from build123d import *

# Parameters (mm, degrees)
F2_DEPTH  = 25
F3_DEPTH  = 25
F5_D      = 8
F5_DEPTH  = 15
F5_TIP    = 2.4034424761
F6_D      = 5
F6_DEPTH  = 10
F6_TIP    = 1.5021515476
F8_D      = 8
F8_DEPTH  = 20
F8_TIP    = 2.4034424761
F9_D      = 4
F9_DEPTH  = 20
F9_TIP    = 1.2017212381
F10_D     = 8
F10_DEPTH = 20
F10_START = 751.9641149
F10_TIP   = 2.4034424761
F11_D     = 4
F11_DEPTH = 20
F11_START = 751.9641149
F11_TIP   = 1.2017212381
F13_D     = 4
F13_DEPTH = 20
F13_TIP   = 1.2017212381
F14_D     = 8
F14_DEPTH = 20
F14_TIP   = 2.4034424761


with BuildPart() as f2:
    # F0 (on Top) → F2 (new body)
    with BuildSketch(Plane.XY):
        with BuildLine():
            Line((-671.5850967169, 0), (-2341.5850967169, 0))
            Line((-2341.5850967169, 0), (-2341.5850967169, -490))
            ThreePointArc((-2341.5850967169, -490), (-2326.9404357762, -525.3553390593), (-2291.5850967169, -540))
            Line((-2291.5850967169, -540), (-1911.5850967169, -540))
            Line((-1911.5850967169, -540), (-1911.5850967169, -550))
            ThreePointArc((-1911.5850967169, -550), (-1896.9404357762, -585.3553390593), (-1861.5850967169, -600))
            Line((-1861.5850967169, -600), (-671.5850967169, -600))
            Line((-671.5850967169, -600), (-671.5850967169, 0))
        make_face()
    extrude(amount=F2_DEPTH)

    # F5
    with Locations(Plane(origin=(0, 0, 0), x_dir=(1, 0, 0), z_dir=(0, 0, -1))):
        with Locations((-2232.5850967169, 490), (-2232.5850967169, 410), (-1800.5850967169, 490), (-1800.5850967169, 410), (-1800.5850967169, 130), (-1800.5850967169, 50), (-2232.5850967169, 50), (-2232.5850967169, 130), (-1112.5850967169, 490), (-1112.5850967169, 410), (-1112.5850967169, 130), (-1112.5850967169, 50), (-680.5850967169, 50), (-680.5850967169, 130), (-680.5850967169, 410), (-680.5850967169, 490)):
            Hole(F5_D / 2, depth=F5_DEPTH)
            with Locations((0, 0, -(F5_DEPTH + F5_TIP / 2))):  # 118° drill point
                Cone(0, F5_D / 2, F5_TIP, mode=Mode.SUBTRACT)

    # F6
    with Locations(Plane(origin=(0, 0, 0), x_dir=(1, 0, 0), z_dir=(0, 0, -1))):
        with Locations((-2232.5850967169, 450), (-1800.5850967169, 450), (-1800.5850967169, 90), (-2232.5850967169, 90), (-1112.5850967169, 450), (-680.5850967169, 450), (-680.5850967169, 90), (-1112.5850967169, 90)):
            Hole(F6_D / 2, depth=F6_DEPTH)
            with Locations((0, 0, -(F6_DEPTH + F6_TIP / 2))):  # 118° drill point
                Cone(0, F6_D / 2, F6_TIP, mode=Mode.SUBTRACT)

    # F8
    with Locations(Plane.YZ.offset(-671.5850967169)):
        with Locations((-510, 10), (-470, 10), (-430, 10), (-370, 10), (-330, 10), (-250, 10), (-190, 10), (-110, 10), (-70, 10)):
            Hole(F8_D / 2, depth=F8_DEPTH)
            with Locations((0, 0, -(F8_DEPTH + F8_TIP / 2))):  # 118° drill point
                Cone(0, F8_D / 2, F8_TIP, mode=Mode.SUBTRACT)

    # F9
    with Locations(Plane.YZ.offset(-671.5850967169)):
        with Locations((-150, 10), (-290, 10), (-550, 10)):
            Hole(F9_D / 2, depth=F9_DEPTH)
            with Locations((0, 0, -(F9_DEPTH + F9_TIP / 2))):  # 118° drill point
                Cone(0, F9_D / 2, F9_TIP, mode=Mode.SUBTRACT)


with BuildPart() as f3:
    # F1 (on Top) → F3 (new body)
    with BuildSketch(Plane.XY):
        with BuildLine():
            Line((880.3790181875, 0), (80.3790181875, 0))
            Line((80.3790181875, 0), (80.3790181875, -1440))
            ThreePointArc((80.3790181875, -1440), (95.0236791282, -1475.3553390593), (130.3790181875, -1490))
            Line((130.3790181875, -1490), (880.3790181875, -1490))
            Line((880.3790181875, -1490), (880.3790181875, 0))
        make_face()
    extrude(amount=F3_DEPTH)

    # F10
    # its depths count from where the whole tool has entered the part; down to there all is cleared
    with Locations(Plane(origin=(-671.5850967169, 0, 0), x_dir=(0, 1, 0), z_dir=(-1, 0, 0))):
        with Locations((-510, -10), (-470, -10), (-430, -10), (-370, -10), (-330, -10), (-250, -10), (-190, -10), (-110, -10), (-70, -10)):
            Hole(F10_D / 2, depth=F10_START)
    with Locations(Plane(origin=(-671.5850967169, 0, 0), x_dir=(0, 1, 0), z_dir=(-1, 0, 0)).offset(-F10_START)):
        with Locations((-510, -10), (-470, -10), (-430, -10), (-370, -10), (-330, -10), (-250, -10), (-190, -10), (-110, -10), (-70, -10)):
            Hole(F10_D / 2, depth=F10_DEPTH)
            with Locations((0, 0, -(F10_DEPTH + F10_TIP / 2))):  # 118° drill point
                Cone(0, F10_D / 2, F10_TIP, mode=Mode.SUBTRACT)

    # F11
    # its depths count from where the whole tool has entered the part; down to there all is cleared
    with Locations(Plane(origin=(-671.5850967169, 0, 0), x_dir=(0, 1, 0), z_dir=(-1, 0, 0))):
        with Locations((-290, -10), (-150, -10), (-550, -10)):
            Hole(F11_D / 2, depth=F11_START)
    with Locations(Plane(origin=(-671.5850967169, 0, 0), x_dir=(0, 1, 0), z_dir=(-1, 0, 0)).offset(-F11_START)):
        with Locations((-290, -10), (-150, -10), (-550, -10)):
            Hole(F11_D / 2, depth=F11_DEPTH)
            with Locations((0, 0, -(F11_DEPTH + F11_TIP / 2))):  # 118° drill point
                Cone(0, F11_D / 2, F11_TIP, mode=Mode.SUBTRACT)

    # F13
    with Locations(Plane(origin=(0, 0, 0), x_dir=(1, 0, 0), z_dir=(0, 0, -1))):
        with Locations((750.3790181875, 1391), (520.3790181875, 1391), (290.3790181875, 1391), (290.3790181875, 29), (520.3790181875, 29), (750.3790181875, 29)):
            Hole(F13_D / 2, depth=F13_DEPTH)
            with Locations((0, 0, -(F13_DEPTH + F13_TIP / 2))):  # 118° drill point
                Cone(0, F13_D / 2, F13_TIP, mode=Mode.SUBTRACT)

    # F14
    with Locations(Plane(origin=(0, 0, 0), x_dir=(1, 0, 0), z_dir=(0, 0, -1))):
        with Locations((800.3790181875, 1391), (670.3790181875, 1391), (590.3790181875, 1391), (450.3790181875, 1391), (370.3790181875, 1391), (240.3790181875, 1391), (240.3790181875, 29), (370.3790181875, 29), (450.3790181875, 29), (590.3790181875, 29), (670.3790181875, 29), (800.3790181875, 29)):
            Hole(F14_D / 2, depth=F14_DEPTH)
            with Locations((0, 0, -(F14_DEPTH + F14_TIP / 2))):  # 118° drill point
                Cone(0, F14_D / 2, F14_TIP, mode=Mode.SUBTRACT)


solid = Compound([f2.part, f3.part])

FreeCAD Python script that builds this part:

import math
import FreeCAD as App
import Part
import Sketcher

doc = App.newDocument("Part")
body = doc.addObject("PartDesign::Body", "Body")

sketch1 = body.newObject("Sketcher::SketchObject", "Sketch")
sketch1.AttachmentSupport = (doc.getObject("XY_Plane"), [""])
sketch1.MapMode = "FlatFace"
sketch1.addGeometry([
    Part.LineSegment(App.Vector(-672, 0, 0), App.Vector(-2342, 0, 0)),
    Part.LineSegment(App.Vector(-2342, 0, 0), App.Vector(-2342, -490, 0)),
    Part.ArcOfCircle(Part.Circle(App.Vector(-2292, -490, 0), App.Vector(0, 0, 1), 50), math.radians(180), math.radians(270)),
    Part.LineSegment(App.Vector(-2292, -540, 0), App.Vector(-1912, -540, 0)),
    Part.LineSegment(App.Vector(-1912, -540, 0), App.Vector(-1912, -550, 0)),
    Part.ArcOfCircle(Part.Circle(App.Vector(-1862, -550, 0), App.Vector(0, 0, 1), 50), math.radians(180), math.radians(270)),
    Part.LineSegment(App.Vector(-1862, -600, 0), App.Vector(-672, -600, 0)),
    Part.LineSegment(App.Vector(-672, -600, 0), App.Vector(-672, 0, 0)),
], False)
sketch1.addConstraint([
    Sketcher.Constraint("Coincident", 0, 2, 1, 1),
    Sketcher.Constraint("Tangent", 1, 2, 2, 1),
    Sketcher.Constraint("Tangent", 2, 2, 3, 1),
    Sketcher.Constraint("Coincident", 3, 2, 4, 1),
    Sketcher.Constraint("Tangent", 4, 2, 5, 1),
    Sketcher.Constraint("Tangent", 5, 2, 6, 1),
    Sketcher.Constraint("Coincident", 6, 2, 7, 1),
    Sketcher.Constraint("Coincident", 7, 2, 0, 1),
    Sketcher.Constraint("Horizontal", 0),
    Sketcher.Constraint("Vertical", 1),
    Sketcher.Constraint("Horizontal", 3),
    Sketcher.Constraint("Vertical", 4),
    Sketcher.Constraint("Horizontal", 6),
    Sketcher.Constraint("Vertical", 7),
    Sketcher.Constraint("Equal", 2, 5),
    Sketcher.Constraint("PointOnObject", 0, 2, -1),
    Sketcher.Constraint("Radius", 2, 50.0),
    Sketcher.Constraint("DistanceX", 0, 2, 0, 1, 1670.0),
    Sketcher.Constraint("DistanceX", 3, 1, 3, 2, 380.0),
    Sketcher.Constraint("DistanceY", 1, 2, 1, 1, 490.0),
    Sketcher.Constraint("DistanceY", 4, 2, 4, 1, 10.0),
    Sketcher.Constraint("DistanceX", 2, 3, -1, 1, 2291.585097),
])
pad1 = body.newObject("PartDesign::Pad", "Pad")
pad1.Profile = sketch1
pad1.Length = 25

sketch2 = body.newObject("Sketcher::SketchObject", "Sketch001")
sketch2.AttachmentSupport = (doc.getObject("XY_Plane"), [""])
sketch2.MapMode = "FlatFace"
sketch2.addGeometry([
    Part.Circle(App.Vector(-2232.6, -490, 0), App.Vector(0, 0, 1), 4),
    Part.Circle(App.Vector(-2232.6, -410, 0), App.Vector(0, 0, 1), 4),
    Part.Circle(App.Vector(-1800.6, -490, 0), App.Vector(0, 0, 1), 4),
    Part.Circle(App.Vector(-1800.6, -410, 0), App.Vector(0, 0, 1), 4),
    Part.Circle(App.Vector(-1800.6, -130, 0), App.Vector(0, 0, 1), 4),
    Part.Circle(App.Vector(-1800.6, -50, 0), App.Vector(0, 0, 1), 4),
    Part.Circle(App.Vector(-2232.6, -50, 0), App.Vector(0, 0, 1), 4),
    Part.Circle(App.Vector(-2232.6, -130, 0), App.Vector(0, 0, 1), 4),
    Part.Circle(App.Vector(-1112.6, -490, 0), App.Vector(0, 0, 1), 4),
    Part.Circle(App.Vector(-1112.6, -410, 0), App.Vector(0, 0, 1), 4),
    Part.Circle(App.Vector(-1112.6, -130, 0), App.Vector(0, 0, 1), 4),
    Part.Circle(App.Vector(-1112.6, -50, 0), App.Vector(0, 0, 1), 4),
    Part.Circle(App.Vector(-680.6, -50, 0), App.Vector(0, 0, 1), 4),
    Part.Circle(App.Vector(-680.6, -130, 0), App.Vector(0, 0, 1), 4),
    Part.Circle(App.Vector(-680.6, -410, 0), App.Vector(0, 0, 1), 4),
    Part.Circle(App.Vector(-680.6, -490, 0), App.Vector(0, 0, 1), 4),
], False)
sketch2.addConstraint([
    Sketcher.Constraint("Equal", 0, 1),
    Sketcher.Constraint("Equal", 1, 2),
    Sketcher.Constraint("Equal", 2, 3),
    Sketcher.Constraint("Equal", 3, 4),
    Sketcher.Constraint("Equal", 4, 5),
    Sketcher.Constraint("Equal", 5, 6),
    Sketcher.Constraint("Equal", 6, 7),
    Sketcher.Constraint("Equal", 7, 8),
    Sketcher.Constraint("Equal", 8, 9),
    Sketcher.Constraint("Equal", 9, 10),
    Sketcher.Constraint("Equal", 10, 11),
    Sketcher.Constraint("Equal", 11, 12),
    Sketcher.Constraint("Equal", 12, 13),
    Sketcher.Constraint("Equal", 13, 14),
    Sketcher.Constraint("Equal", 14, 15),
    Sketcher.Constraint("Horizontal", 0, 3, 2, 3),
    Sketcher.Constraint("Horizontal", 1, 3, 3, 3),
    Sketcher.Constraint("Horizontal", 5, 3, 6, 3),
    Sketcher.Constraint("Horizontal", 4, 3, 7, 3),
    Sketcher.Constraint("Horizontal", 2, 3, 8, 3),
    Sketcher.Constraint("Horizontal", 3, 3, 9, 3),
    Sketcher.Constraint("Horizontal", 7, 3, 10, 3),
    Sketcher.Constraint("Horizontal", 6, 3, 11, 3),
    Sketcher.Constraint("Horizontal", 11, 3, 12, 3),
    Sketcher.Constraint("Horizontal", 10, 3, 13, 3),
    Sketcher.Constraint("Horizontal", 9, 3, 14, 3),
    Sketcher.Constraint("Horizontal", 8, 3, 15, 3),
    Sketcher.Constraint("Vertical", 0, 3, 1, 3),
    Sketcher.Constraint("Vertical", 2, 3, 3, 3),
    Sketcher.Constraint("Vertical", 3, 3, 4, 3),
    Sketcher.Constraint("Vertical", 4, 3, 5, 3),
    Sketcher.Constraint("Vertical", 1, 3, 6, 3),
    Sketcher.Constraint("Vertical", 6, 3, 7, 3),
    Sketcher.Constraint("Vertical", 8, 3, 9, 3),
    Sketcher.Constraint("Vertical", 9, 3, 10, 3),
    Sketcher.Constraint("Vertical", 10, 3, 11, 3),
    Sketcher.Constraint("Vertical", 12, 3, 13, 3),
    Sketcher.Constraint("Vertical", 13, 3, 14, 3),
    Sketcher.Constraint("Vertical", 14, 3, 15, 3),
    Sketcher.Constraint("Diameter", 0, 8.0),
    Sketcher.Constraint("DistanceY", 0, 3, -1, 1, 490.0),
    Sketcher.Constraint("DistanceY", 1, 3, -1, 1, 410.0),
    Sketcher.Constraint("DistanceY", 4, 3, -1, 1, 130.0),
    Sketcher.Constraint("DistanceY", 5, 3, -1, 1, 50.0),
    Sketcher.Constraint("DistanceX", 0, 3, 2, 3, 432.0),
    Sketcher.Constraint("DistanceX", 2, 3, 8, 3, 688.0),
    Sketcher.Constraint("DistanceX", 11, 3, 12, 3, 432.0),
    Sketcher.Constraint("DistanceX", 0, 3, -1, 1, 2232.585097),
])
doc.recompute()
hole = body.newObject("PartDesign::Hole", "Hole")
hole.Profile = sketch2
hole.ThreadType = "None"
hole.Diameter = 8
hole.DepthType = "Dimension"
hole.Depth = 15
hole.DrillPoint = "Angled"
hole.DrillPointAngle = 118
hole.Reversed = True

sketch3 = body.newObject("Sketcher::SketchObject", "Sketch002")
sketch3.AttachmentSupport = (doc.getObject("XY_Plane"), [""])
sketch3.MapMode = "FlatFace"
sketch3.addGeometry([
    Part.Circle(App.Vector(-2232.6, -450, 0), App.Vector(0, 0, 1), 2.5),
    Part.Circle(App.Vector(-1800.6, -450, 0), App.Vector(0, 0, 1), 2.5),
    Part.Circle(App.Vector(-1800.6, -90, 0), App.Vector(0, 0, 1), 2.5),
    Part.Circle(App.Vector(-2232.6, -90, 0), App.Vector(0, 0, 1), 2.5),
    Part.Circle(App.Vector(-1112.6, -450, 0), App.Vector(0, 0, 1), 2.5),
    Part.Circle(App.Vector(-680.6, -450, 0), App.Vector(0, 0, 1), 2.5),
    Part.Circle(App.Vector(-680.6, -90, 0), App.Vector(0, 0, 1), 2.5),
    Part.Circle(App.Vector(-1112.6, -90, 0), App.Vector(0, 0, 1), 2.5),
], False)
sketch3.addConstraint([
    Sketcher.Constraint("Equal", 0, 1),
    Sketcher.Constraint("Equal", 1, 2),
    Sketcher.Constraint("Equal", 2, 3),
    Sketcher.Constraint("Equal", 3, 4),
    Sketcher.Constraint("Equal", 4, 5),
    Sketcher.Constraint("Equal", 5, 6),
    Sketcher.Constraint("Equal", 6, 7),
    Sketcher.Constraint("Horizontal", 0, 3, 1, 3),
    Sketcher.Constraint("Horizontal", 2, 3, 3, 3),
    Sketcher.Constraint("Horizontal", 1, 3, 4, 3),
    Sketcher.Constraint("Horizontal", 4, 3, 5, 3),
    Sketcher.Constraint("Horizontal", 3, 3, 6, 3),
    Sketcher.Constraint("Horizontal", 6, 3, 7, 3),
    Sketcher.Constraint("Vertical", 1, 3, 2, 3),
    Sketcher.Constraint("Vertical", 0, 3, 3, 3),
    Sketcher.Constraint("Vertical", 5, 3, 6, 3),
    Sketcher.Constraint("Vertical", 4, 3, 7, 3),
    Sketcher.Constraint("Diameter", 0, 5.0),
    Sketcher.Constraint("DistanceY", 0, 3, -1, 1, 450.0),
    Sketcher.Constraint("DistanceY", 2, 3, -1, 1, 90.0),
    Sketcher.Constraint("DistanceX", 0, 3, 1, 3, 432.0),
    Sketcher.Constraint("DistanceX", 1, 3, 4, 3, 688.0),
    Sketcher.Constraint("DistanceX", 4, 3, 5, 3, 432.0),
    Sketcher.Constraint("DistanceX", 0, 3, -1, 1, 2232.585097),
])
doc.recompute()
hole2 = body.newObject("PartDesign::Hole", "Hole001")
hole2.Profile = sketch3
hole2.ThreadType = "None"
hole2.Diameter = 5
hole2.DepthType = "Dimension"
hole2.Depth = 10
hole2.DrillPoint = "Angled"
hole2.DrillPointAngle = 118
hole2.Reversed = True

sketch4 = body.newObject("Sketcher::SketchObject", "Sketch003")
sketch4.AttachmentSupport = (doc.getObject("YZ_Plane"), [""])
sketch4.MapMode = "FlatFace"
sketch4.AttachmentOffset = App.Placement(App.Vector(0, 0, -671.585097), App.Rotation())
sketch4.addGeometry([
    Part.Circle(App.Vector(-510, 10, 0), App.Vector(0, 0, 1), 4),
    Part.Circle(App.Vector(-470, 10, 0), App.Vector(0, 0, 1), 4),
    Part.Circle(App.Vector(-430, 10, 0), App.Vector(0, 0, 1), 4),
    Part.Circle(App.Vector(-370, 10, 0), App.Vector(0, 0, 1), 4),
    Part.Circle(App.Vector(-330, 10, 0), App.Vector(0, 0, 1), 4),
    Part.Circle(App.Vector(-250, 10, 0), App.Vector(0, 0, 1), 4),
    Part.Circle(App.Vector(-190, 10, 0), App.Vector(0, 0, 1), 4),
    Part.Circle(App.Vector(-110, 10, 0), App.Vector(0, 0, 1), 4),
    Part.Circle(App.Vector(-70, 10, 0), App.Vector(0, 0, 1), 4),
], False)
sketch4.addConstraint([
    Sketcher.Constraint("Equal", 0, 1),
    Sketcher.Constraint("Equal", 1, 2),
    Sketcher.Constraint("Equal", 2, 3),
    Sketcher.Constraint("Equal", 3, 4),
    Sketcher.Constraint("Equal", 4, 5),
    Sketcher.Constraint("Equal", 5, 6),
    Sketcher.Constraint("Equal", 6, 7),
    Sketcher.Constraint("Equal", 7, 8),
    Sketcher.Constraint("Horizontal", 0, 3, 1, 3),
    Sketcher.Constraint("Horizontal", 1, 3, 2, 3),
    Sketcher.Constraint("Horizontal", 2, 3, 3, 3),
    Sketcher.Constraint("Horizontal", 3, 3, 4, 3),
    Sketcher.Constraint("Horizontal", 4, 3, 5, 3),
    Sketcher.Constraint("Horizontal", 5, 3, 6, 3),
    Sketcher.Constraint("Horizontal", 6, 3, 7, 3),
    Sketcher.Constraint("Horizontal", 7, 3, 8, 3),
    Sketcher.Constraint("Diameter", 0, 8.0),
    Sketcher.Constraint("DistanceX", 0, 3, -1, 1, 510.0),
    Sketcher.Constraint("DistanceY", -1, 1, 0, 3, 10.0),
    Sketcher.Constraint("DistanceX", 1, 3, -1, 1, 470.0),
    Sketcher.Constraint("DistanceX", 2, 3, -1, 1, 430.0),
    Sketcher.Constraint("DistanceX", 3, 3, -1, 1, 370.0),
    Sketcher.Constraint("DistanceX", 4, 3, -1, 1, 330.0),
    Sketcher.Constraint("DistanceX", 5, 3, -1, 1, 250.0),
    Sketcher.Constraint("DistanceX", 6, 3, -1, 1, 190.0),
    Sketcher.Constraint("DistanceX", 7, 3, -1, 1, 110.0),
    Sketcher.Constraint("DistanceX", 8, 3, -1, 1, 70.0),
])
doc.recompute()
hole3 = body.newObject("PartDesign::Hole", "Hole002")
hole3.Profile = sketch4
hole3.ThreadType = "None"
hole3.Diameter = 8
hole3.DepthType = "Dimension"
hole3.Depth = 20
hole3.DrillPoint = "Angled"
hole3.DrillPointAngle = 118

sketch5 = body.newObject("Sketcher::SketchObject", "Sketch004")
sketch5.AttachmentSupport = (doc.getObject("YZ_Plane"), [""])
sketch5.MapMode = "FlatFace"
sketch5.AttachmentOffset = App.Placement(App.Vector(0, 0, -671.585097), App.Rotation())
sketch5.addGeometry([
    Part.Circle(App.Vector(-150, 10, 0), App.Vector(0, 0, 1), 2),
    Part.Circle(App.Vector(-290, 10, 0), App.Vector(0, 0, 1), 2),
    Part.Circle(App.Vector(-550, 10, 0), App.Vector(0, 0, 1), 2),
], False)
sketch5.addConstraint([
    Sketcher.Constraint("Equal", 0, 1),
    Sketcher.Constraint("Equal", 1, 2),
    Sketcher.Constraint("Horizontal", 0, 3, 1, 3),
    Sketcher.Constraint("Horizontal", 1, 3, 2, 3),
    Sketcher.Constraint("Diameter", 0, 4.0),
    Sketcher.Constraint("DistanceX", 0, 3, -1, 1, 150.0),
    Sketcher.Constraint("DistanceY", -1, 1, 0, 3, 10.0),
    Sketcher.Constraint("DistanceX", 1, 3, -1, 1, 290.0),
    Sketcher.Constraint("DistanceX", 2, 3, -1, 1, 550.0),
])
doc.recompute()
hole4 = body.newObject("PartDesign::Hole", "Hole003")
hole4.Profile = sketch5
hole4.ThreadType = "None"
hole4.Diameter = 4
hole4.DepthType = "Dimension"
hole4.Depth = 20
hole4.DrillPoint = "Angled"
hole4.DrillPointAngle = 118
body2 = doc.addObject("PartDesign::Body", "Body001")

sketch6 = body2.newObject("Sketcher::SketchObject", "Sketch005")
sketch6.AttachmentSupport = (doc.getObject("XY_Plane001"), [""])
sketch6.MapMode = "FlatFace"
sketch6.addGeometry([
    Part.LineSegment(App.Vector(880, 0, 0), App.Vector(80, 0, 0)),
    Part.LineSegment(App.Vector(80, 0, 0), App.Vector(80, -1440, 0)),
    Part.ArcOfCircle(Part.Circle(App.Vector(130, -1440, 0), App.Vector(0, 0, 1), 50), math.radians(180), math.radians(270)),
    Part.LineSegment(App.Vector(130, -1490, 0), App.Vector(880, -1490, 0)),
    Part.LineSegment(App.Vector(880, -1490, 0), App.Vector(880, 0, 0)),
], False)
sketch6.addConstraint([
    Sketcher.Constraint("Coincident", 0, 2, 1, 1),
    Sketcher.Constraint("Tangent", 1, 2, 2, 1),
    Sketcher.Constraint("Tangent", 2, 2, 3, 1),
    Sketcher.Constraint("Coincident", 3, 2, 4, 1),
    Sketcher.Constraint("Coincident", 4, 2, 0, 1),
    Sketcher.Constraint("Horizontal", 0),
    Sketcher.Constraint("Vertical", 1),
    Sketcher.Constraint("Horizontal", 3),
    Sketcher.Constraint("Vertical", 4),
    Sketcher.Constraint("PointOnObject", 0, 2, -1),
    Sketcher.Constraint("Radius", 2, 50.0),
    Sketcher.Constraint("DistanceX", 0, 2, 0, 1, 800.0),
    Sketcher.Constraint("DistanceY", 1, 2, 1, 1, 1440.0),
    Sketcher.Constraint("DistanceX", -1, 1, 2, 3, 130.379018),
])
pad2 = body2.newObject("PartDesign::Pad", "Pad001")
pad2.Profile = sketch6
pad2.Length = 25

sketch7 = body2.newObject("Sketcher::SketchObject", "Sketch006")
sketch7.AttachmentSupport = (doc.getObject("YZ_Plane001"), [""])
sketch7.MapMode = "FlatFace"
sketch7.AttachmentOffset = App.Placement(App.Vector(0, 0, -671.585097), App.Rotation())
sketch7.addGeometry([
    Part.Circle(App.Vector(-510, 10, 0), App.Vector(0, 0, 1), 4),
    Part.Circle(App.Vector(-470, 10, 0), App.Vector(0, 0, 1), 4),
    Part.Circle(App.Vector(-430, 10, 0), App.Vector(0, 0, 1), 4),
    Part.Circle(App.Vector(-370, 10, 0), App.Vector(0, 0, 1), 4),
    Part.Circle(App.Vector(-330, 10, 0), App.Vector(0, 0, 1), 4),
    Part.Circle(App.Vector(-250, 10, 0), App.Vector(0, 0, 1), 4),
    Part.Circle(App.Vector(-190, 10, 0), App.Vector(0, 0, 1), 4),
    Part.Circle(App.Vector(-110, 10, 0), App.Vector(0, 0, 1), 4),
    Part.Circle(App.Vector(-70, 10, 0), App.Vector(0, 0, 1), 4),
], False)
sketch7.addConstraint([
    Sketcher.Constraint("Equal", 0, 1),
    Sketcher.Constraint("Equal", 1, 2),
    Sketcher.Constraint("Equal", 2, 3),
    Sketcher.Constraint("Equal", 3, 4),
    Sketcher.Constraint("Equal", 4, 5),
    Sketcher.Constraint("Equal", 5, 6),
    Sketcher.Constraint("Equal", 6, 7),
    Sketcher.Constraint("Equal", 7, 8),
    Sketcher.Constraint("Horizontal", 0, 3, 1, 3),
    Sketcher.Constraint("Horizontal", 1, 3, 2, 3),
    Sketcher.Constraint("Horizontal", 2, 3, 3, 3),
    Sketcher.Constraint("Horizontal", 3, 3, 4, 3),
    Sketcher.Constraint("Horizontal", 4, 3, 5, 3),
    Sketcher.Constraint("Horizontal", 5, 3, 6, 3),
    Sketcher.Constraint("Horizontal", 6, 3, 7, 3),
    Sketcher.Constraint("Horizontal", 7, 3, 8, 3),
    Sketcher.Constraint("Diameter", 0, 8.0),
    Sketcher.Constraint("DistanceX", 0, 3, -1, 1, 510.0),
    Sketcher.Constraint("DistanceY", -1, 1, 0, 3, 10.0),
    Sketcher.Constraint("DistanceX", 1, 3, -1, 1, 470.0),
    Sketcher.Constraint("DistanceX", 2, 3, -1, 1, 430.0),
    Sketcher.Constraint("DistanceX", 3, 3, -1, 1, 370.0),
    Sketcher.Constraint("DistanceX", 4, 3, -1, 1, 330.0),
    Sketcher.Constraint("DistanceX", 5, 3, -1, 1, 250.0),
    Sketcher.Constraint("DistanceX", 6, 3, -1, 1, 190.0),
    Sketcher.Constraint("DistanceX", 7, 3, -1, 1, 110.0),
    Sketcher.Constraint("DistanceX", 8, 3, -1, 1, 70.0),
])
doc.recompute()
hole5 = body2.newObject("PartDesign::Hole", "Hole004")
hole5.Profile = sketch7
hole5.ThreadType = "None"
hole5.Diameter = 8
hole5.DepthType = "Dimension"
hole5.Depth = 751.964115
hole5.DrillPoint = "Flat"
hole5.Reversed = True

sketch8 = body2.newObject("Sketcher::SketchObject", "Sketch007")
sketch8.AttachmentSupport = (doc.getObject("YZ_Plane001"), [""])
sketch8.MapMode = "FlatFace"
sketch8.AttachmentOffset = App.Placement(App.Vector(0, 0, 80.379018), App.Rotation())
sketch8.addGeometry([
    Part.Circle(App.Vector(-510, 10, 0), App.Vector(0, 0, 1), 4),
    Part.Circle(App.Vector(-470, 10, 0), App.Vector(0, 0, 1), 4),
    Part.Circle(App.Vector(-430, 10, 0), App.Vector(0, 0, 1), 4),
    Part.Circle(App.Vector(-370, 10, 0), App.Vector(0, 0, 1), 4),
    Part.Circle(App.Vector(-330, 10, 0), App.Vector(0, 0, 1), 4),
    Part.Circle(App.Vector(-250, 10, 0), App.Vector(0, 0, 1), 4),
    Part.Circle(App.Vector(-190, 10, 0), App.Vector(0, 0, 1), 4),
    Part.Circle(App.Vector(-110, 10, 0), App.Vector(0, 0, 1), 4),
    Part.Circle(App.Vector(-70, 10, 0), App.Vector(0, 0, 1), 4),
], False)
sketch8.addConstraint([
    Sketcher.Constraint("Equal", 0, 1),
    Sketcher.Constraint("Equal", 1, 2),
    Sketcher.Constraint("Equal", 2, 3),
    Sketcher.Constraint("Equal", 3, 4),
    Sketcher.Constraint("Equal", 4, 5),
    Sketcher.Constraint("Equal", 5, 6),
    Sketcher.Constraint("Equal", 6, 7),
    Sketcher.Constraint("Equal", 7, 8),
    Sketcher.Constraint("Horizontal", 0, 3, 1, 3),
    Sketcher.Constraint("Horizontal", 1, 3, 2, 3),
    Sketcher.Constraint("Horizontal", 2, 3, 3, 3),
    Sketcher.Constraint("Horizontal", 3, 3, 4, 3),
    Sketcher.Constraint("Horizontal", 4, 3, 5, 3),
    Sketcher.Constraint("Horizontal", 5, 3, 6, 3),
    Sketcher.Constraint("Horizontal", 6, 3, 7, 3),
    Sketcher.Constraint("Horizontal", 7, 3, 8, 3),
    Sketcher.Constraint("Diameter", 0, 8.0),
    Sketcher.Constraint("DistanceX", 0, 3, -1, 1, 510.0),
    Sketcher.Constraint("DistanceY", -1, 1, 0, 3, 10.0),
    Sketcher.Constraint("DistanceX", 1, 3, -1, 1, 470.0),
    Sketcher.Constraint("DistanceX", 2, 3, -1, 1, 430.0),
    Sketcher.Constraint("DistanceX", 3, 3, -1, 1, 370.0),
    Sketcher.Constraint("DistanceX", 4, 3, -1, 1, 330.0),
    Sketcher.Constraint("DistanceX", 5, 3, -1, 1, 250.0),
    Sketcher.Constraint("DistanceX", 6, 3, -1, 1, 190.0),
    Sketcher.Constraint("DistanceX", 7, 3, -1, 1, 110.0),
    Sketcher.Constraint("DistanceX", 8, 3, -1, 1, 70.0),
])
doc.recompute()
hole6 = body2.newObject("PartDesign::Hole", "Hole005")
hole6.Profile = sketch8
hole6.ThreadType = "None"
hole6.Diameter = 8
hole6.DepthType = "Dimension"
hole6.Depth = 20
hole6.DrillPoint = "Angled"
hole6.DrillPointAngle = 118
hole6.Reversed = True

sketch9 = body2.newObject("Sketcher::SketchObject", "Sketch008")
sketch9.AttachmentSupport = (doc.getObject("YZ_Plane001"), [""])
sketch9.MapMode = "FlatFace"
sketch9.AttachmentOffset = App.Placement(App.Vector(0, 0, -671.585097), App.Rotation())
sketch9.addGeometry([
    Part.Circle(App.Vector(-290, 10, 0), App.Vector(0, 0, 1), 2),
    Part.Circle(App.Vector(-150, 10, 0), App.Vector(0, 0, 1), 2),
    Part.Circle(App.Vector(-550, 10, 0), App.Vector(0, 0, 1), 2),
], False)
sketch9.addConstraint([
    Sketcher.Constraint("Equal", 0, 1),
    Sketcher.Constraint("Equal", 1, 2),
    Sketcher.Constraint("Horizontal", 0, 3, 1, 3),
    Sketcher.Constraint("Horizontal", 1, 3, 2, 3),
    Sketcher.Constraint("Diameter", 0, 4.0),
    Sketcher.Constraint("DistanceX", 0, 3, -1, 1, 290.0),
    Sketcher.Constraint("DistanceY", -1, 1, 0, 3, 10.0),
    Sketcher.Constraint("DistanceX", 1, 3, -1, 1, 150.0),
    Sketcher.Constraint("DistanceX", 2, 3, -1, 1, 550.0),
])
doc.recompute()
hole7 = body2.newObject("PartDesign::Hole", "Hole006")
hole7.Profile = sketch9
hole7.ThreadType = "None"
hole7.Diameter = 4
hole7.DepthType = "Dimension"
hole7.Depth = 751.964115
hole7.DrillPoint = "Flat"
hole7.Reversed = True

sketch10 = body2.newObject("Sketcher::SketchObject", "Sketch009")
sketch10.AttachmentSupport = (doc.getObject("YZ_Plane001"), [""])
sketch10.MapMode = "FlatFace"
sketch10.AttachmentOffset = App.Placement(App.Vector(0, 0, 80.379018), App.Rotation())
sketch10.addGeometry([
    Part.Circle(App.Vector(-290, 10, 0), App.Vector(0, 0, 1), 2),
    Part.Circle(App.Vector(-150, 10, 0), App.Vector(0, 0, 1), 2),
    Part.Circle(App.Vector(-550, 10, 0), App.Vector(0, 0, 1), 2),
], False)
sketch10.addConstraint([
    Sketcher.Constraint("Equal", 0, 1),
    Sketcher.Constraint("Equal", 1, 2),
    Sketcher.Constraint("Horizontal", 0, 3, 1, 3),
    Sketcher.Constraint("Horizontal", 1, 3, 2, 3),
    Sketcher.Constraint("Diameter", 0, 4.0),
    Sketcher.Constraint("DistanceX", 0, 3, -1, 1, 290.0),
    Sketcher.Constraint("DistanceY", -1, 1, 0, 3, 10.0),
    Sketcher.Constraint("DistanceX", 1, 3, -1, 1, 150.0),
    Sketcher.Constraint("DistanceX", 2, 3, -1, 1, 550.0),
])
doc.recompute()
hole8 = body2.newObject("PartDesign::Hole", "Hole007")
hole8.Profile = sketch10
hole8.ThreadType = "None"
hole8.Diameter = 4
hole8.DepthType = "Dimension"
hole8.Depth = 20
hole8.DrillPoint = "Angled"
hole8.DrillPointAngle = 118
hole8.Reversed = True

sketch11 = body2.newObject("Sketcher::SketchObject", "Sketch010")
sketch11.AttachmentSupport = (doc.getObject("XY_Plane001"), [""])
sketch11.MapMode = "FlatFace"
sketch11.addGeometry([
    Part.Circle(App.Vector(750.4, -1391, 0), App.Vector(0, 0, 1), 2),
    Part.Circle(App.Vector(520.4, -1391, 0), App.Vector(0, 0, 1), 2),
    Part.Circle(App.Vector(290.4, -1391, 0), App.Vector(0, 0, 1), 2),
    Part.Circle(App.Vector(290.4, -29, 0), App.Vector(0, 0, 1), 2),
    Part.Circle(App.Vector(520.4, -29, 0), App.Vector(0, 0, 1), 2),
    Part.Circle(App.Vector(750.4, -29, 0), App.Vector(0, 0, 1), 2),
], False)
sketch11.addConstraint([
    Sketcher.Constraint("Equal", 0, 1),
    Sketcher.Constraint("Equal", 1, 2),
    Sketcher.Constraint("Equal", 2, 3),
    Sketcher.Constraint("Equal", 3, 4),
    Sketcher.Constraint("Equal", 4, 5),
    Sketcher.Constraint("Horizontal", 0, 3, 1, 3),
    Sketcher.Constraint("Horizontal", 1, 3, 2, 3),
    Sketcher.Constraint("Horizontal", 3, 3, 4, 3),
    Sketcher.Constraint("Horizontal", 4, 3, 5, 3),
    Sketcher.Constraint("Vertical", 2, 3, 3, 3),
    Sketcher.Constraint("Vertical", 1, 3, 4, 3),
    Sketcher.Constraint("Vertical", 0, 3, 5, 3),
    Sketcher.Constraint("Diameter", 0, 4.0),
    Sketcher.Constraint("DistanceY", 0, 3, -1, 1, 1391.0),
    Sketcher.Constraint("DistanceY", 3, 3, -1, 1, 29.0),
    Sketcher.Constraint("DistanceX", 1, 3, 0, 3, 230.0),
    Sketcher.Constraint("DistanceX", 2, 3, 1, 3, 230.0),
    Sketcher.Constraint("DistanceX", -1, 1, 0, 3, 750.379018),
])
doc.recompute()
hole9 = body2.newObject("PartDesign::Hole", "Hole008")
hole9.Profile = sketch11
hole9.ThreadType = "None"
hole9.Diameter = 4
hole9.DepthType = "Dimension"
hole9.Depth = 20
hole9.DrillPoint = "Angled"
hole9.DrillPointAngle = 118
hole9.Reversed = True

sketch12 = body2.newObject("Sketcher::SketchObject", "Sketch011")
sketch12.AttachmentSupport = (doc.getObject("XY_Plane001"), [""])
sketch12.MapMode = "FlatFace"
sketch12.addGeometry([
    Part.Circle(App.Vector(800.4, -1391, 0), App.Vector(0, 0, 1), 4),
    Part.Circle(App.Vector(670.4, -1391, 0), App.Vector(0, 0, 1), 4),
    Part.Circle(App.Vector(590.4, -1391, 0), App.Vector(0, 0, 1), 4),
    Part.Circle(App.Vector(450.4, -1391, 0), App.Vector(0, 0, 1), 4),
    Part.Circle(App.Vector(370.4, -1391, 0), App.Vector(0, 0, 1), 4),
    Part.Circle(App.Vector(240.4, -1391, 0), App.Vector(0, 0, 1), 4),
    Part.Circle(App.Vector(240.4, -29, 0), App.Vector(0, 0, 1), 4),
    Part.Circle(App.Vector(370.4, -29, 0), App.Vector(0, 0, 1), 4),
    Part.Circle(App.Vector(450.4, -29, 0), App.Vector(0, 0, 1), 4),
    Part.Circle(App.Vector(590.4, -29, 0), App.Vector(0, 0, 1), 4),
    Part.Circle(App.Vector(670.4, -29, 0), App.Vector(0, 0, 1), 4),
    Part.Circle(App.Vector(800.4, -29, 0), App.Vector(0, 0, 1), 4),
], False)
sketch12.addConstraint([
    Sketcher.Constraint("Equal", 0, 1),
    Sketcher.Constraint("Equal", 1, 2),
    Sketcher.Constraint("Equal", 2, 3),
    Sketcher.Constraint("Equal", 3, 4),
    Sketcher.Constraint("Equal", 4, 5),
    Sketcher.Constraint("Equal", 5, 6),
    Sketcher.Constraint("Equal", 6, 7),
    Sketcher.Constraint("Equal", 7, 8),
    Sketcher.Constraint("Equal", 8, 9),
    Sketcher.Constraint("Equal", 9, 10),
    Sketcher.Constraint("Equal", 10, 11),
    Sketcher.Constraint("Horizontal", 0, 3, 1, 3),
    Sketcher.Constraint("Horizontal", 1, 3, 2, 3),
    Sketcher.Constraint("Horizontal", 2, 3, 3, 3),
    Sketcher.Constraint("Horizontal", 3, 3, 4, 3),
    Sketcher.Constraint("Horizontal", 4, 3, 5, 3),
    Sketcher.Constraint("Horizontal", 6, 3, 7, 3),
    Sketcher.Constraint("Horizontal", 7, 3, 8, 3),
    Sketcher.Constraint("Horizontal", 8, 3, 9, 3),
    Sketcher.Constraint("Horizontal", 9, 3, 10, 3),
    Sketcher.Constraint("Horizontal", 10, 3, 11, 3),
    Sketcher.Constraint("Vertical", 5, 3, 6, 3),
    Sketcher.Constraint("Vertical", 4, 3, 7, 3),
    Sketcher.Constraint("Vertical", 3, 3, 8, 3),
    Sketcher.Constraint("Vertical", 2, 3, 9, 3),
    Sketcher.Constraint("Vertical", 1, 3, 10, 3),
    Sketcher.Constraint("Vertical", 0, 3, 11, 3),
    Sketcher.Constraint("Diameter", 0, 8.0),
    Sketcher.Constraint("DistanceY", 0, 3, -1, 1, 1391.0),
    Sketcher.Constraint("DistanceY", 6, 3, -1, 1, 29.0),
    Sketcher.Constraint("DistanceX", 1, 3, 0, 3, 130.0),
    Sketcher.Constraint("DistanceX", 2, 3, 1, 3, 80.0),
    Sketcher.Constraint("DistanceX", 3, 3, 2, 3, 140.0),
    Sketcher.Constraint("DistanceX", 4, 3, 3, 3, 80.0),
    Sketcher.Constraint("DistanceX", 5, 3, 4, 3, 130.0),
    Sketcher.Constraint("DistanceX", -1, 1, 0, 3, 800.379018),
])
doc.recompute()
hole10 = body2.newObject("PartDesign::Hole", "Hole009")
hole10.Profile = sketch12
hole10.ThreadType = "None"
hole10.Diameter = 8
hole10.DepthType = "Dimension"
hole10.Depth = 20
hole10.DrillPoint = "Angled"
hole10.DrillPointAngle = 118
hole10.Reversed = True

doc.recompute()
